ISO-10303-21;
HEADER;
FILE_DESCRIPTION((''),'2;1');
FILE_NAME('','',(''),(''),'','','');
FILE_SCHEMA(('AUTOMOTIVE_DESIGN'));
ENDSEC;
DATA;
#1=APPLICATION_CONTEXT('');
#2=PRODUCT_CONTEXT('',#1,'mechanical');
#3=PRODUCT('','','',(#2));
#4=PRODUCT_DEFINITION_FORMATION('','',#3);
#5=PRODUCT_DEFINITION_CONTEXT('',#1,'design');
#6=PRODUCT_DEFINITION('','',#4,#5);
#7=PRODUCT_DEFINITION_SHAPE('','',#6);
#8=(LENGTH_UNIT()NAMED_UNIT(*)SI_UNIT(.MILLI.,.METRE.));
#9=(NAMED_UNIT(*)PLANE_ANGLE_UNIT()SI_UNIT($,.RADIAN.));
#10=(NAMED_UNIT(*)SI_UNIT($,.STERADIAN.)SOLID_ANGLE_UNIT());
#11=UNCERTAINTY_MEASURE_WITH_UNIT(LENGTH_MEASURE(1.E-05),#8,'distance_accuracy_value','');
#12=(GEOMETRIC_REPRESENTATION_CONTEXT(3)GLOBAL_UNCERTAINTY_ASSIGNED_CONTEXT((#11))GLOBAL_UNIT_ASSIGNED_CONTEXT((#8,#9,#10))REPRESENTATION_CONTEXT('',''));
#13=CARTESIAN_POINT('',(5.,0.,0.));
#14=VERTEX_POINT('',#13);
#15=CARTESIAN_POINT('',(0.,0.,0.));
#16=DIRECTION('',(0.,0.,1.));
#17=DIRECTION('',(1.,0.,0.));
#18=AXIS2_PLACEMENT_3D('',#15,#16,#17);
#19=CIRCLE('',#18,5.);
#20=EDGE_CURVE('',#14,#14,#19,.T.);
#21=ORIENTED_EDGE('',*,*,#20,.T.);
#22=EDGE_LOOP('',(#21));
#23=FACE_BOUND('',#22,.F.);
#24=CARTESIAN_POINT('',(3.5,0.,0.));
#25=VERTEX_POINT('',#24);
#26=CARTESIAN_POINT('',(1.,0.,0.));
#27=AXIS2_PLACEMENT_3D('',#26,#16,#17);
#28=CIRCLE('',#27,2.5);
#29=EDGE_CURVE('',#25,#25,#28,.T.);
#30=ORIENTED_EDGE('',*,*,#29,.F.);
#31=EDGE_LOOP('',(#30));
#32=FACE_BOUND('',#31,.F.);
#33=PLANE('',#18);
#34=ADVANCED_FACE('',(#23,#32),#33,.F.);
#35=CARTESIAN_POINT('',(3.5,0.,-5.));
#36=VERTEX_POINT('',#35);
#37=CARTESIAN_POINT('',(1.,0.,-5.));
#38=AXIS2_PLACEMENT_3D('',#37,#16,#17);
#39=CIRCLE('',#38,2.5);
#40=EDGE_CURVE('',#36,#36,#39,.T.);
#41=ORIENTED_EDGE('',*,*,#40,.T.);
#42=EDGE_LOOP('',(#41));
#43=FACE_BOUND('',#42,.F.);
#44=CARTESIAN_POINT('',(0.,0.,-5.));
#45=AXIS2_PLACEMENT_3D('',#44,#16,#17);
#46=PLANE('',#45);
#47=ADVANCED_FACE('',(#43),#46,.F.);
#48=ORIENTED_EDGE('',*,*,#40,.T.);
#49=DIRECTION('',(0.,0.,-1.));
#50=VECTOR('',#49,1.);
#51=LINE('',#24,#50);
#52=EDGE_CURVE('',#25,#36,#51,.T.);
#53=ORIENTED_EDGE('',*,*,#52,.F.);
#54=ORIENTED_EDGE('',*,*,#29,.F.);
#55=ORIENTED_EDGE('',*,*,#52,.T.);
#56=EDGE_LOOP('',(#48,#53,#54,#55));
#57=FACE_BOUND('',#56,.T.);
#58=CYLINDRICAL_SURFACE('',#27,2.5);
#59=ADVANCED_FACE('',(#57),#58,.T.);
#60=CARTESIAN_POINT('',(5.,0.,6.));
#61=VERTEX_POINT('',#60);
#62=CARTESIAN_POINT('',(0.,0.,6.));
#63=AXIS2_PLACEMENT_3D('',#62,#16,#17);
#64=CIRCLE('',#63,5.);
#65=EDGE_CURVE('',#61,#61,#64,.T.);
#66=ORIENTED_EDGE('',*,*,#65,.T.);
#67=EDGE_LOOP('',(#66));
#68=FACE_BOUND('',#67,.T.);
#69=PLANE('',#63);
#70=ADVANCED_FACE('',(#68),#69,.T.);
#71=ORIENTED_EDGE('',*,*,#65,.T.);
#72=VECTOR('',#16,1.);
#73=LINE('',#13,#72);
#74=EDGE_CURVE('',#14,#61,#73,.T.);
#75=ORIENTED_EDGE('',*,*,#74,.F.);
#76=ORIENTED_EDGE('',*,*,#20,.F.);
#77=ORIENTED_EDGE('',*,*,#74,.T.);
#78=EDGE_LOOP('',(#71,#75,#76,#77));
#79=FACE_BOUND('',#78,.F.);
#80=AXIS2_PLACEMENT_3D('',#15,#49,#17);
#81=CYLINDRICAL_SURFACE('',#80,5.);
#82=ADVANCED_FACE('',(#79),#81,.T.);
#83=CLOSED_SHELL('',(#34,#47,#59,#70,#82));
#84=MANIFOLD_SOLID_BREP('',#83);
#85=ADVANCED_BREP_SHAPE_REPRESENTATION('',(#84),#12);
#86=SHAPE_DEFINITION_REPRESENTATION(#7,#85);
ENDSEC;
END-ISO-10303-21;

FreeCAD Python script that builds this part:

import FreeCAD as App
import Part
import Sketcher

V = App.Vector

doc = App.newDocument("Part")
body = doc.addObject("PartDesign::Body", "Body")

sketch1 = doc.addObject("Sketcher::SketchObject", "Sketch")
body.addObject(sketch1)
sketch1.AttachmentSupport = (doc.XY_Plane, [""])
sketch1.MapMode = "FlatFace"
sketch1.addGeometry(Part.Circle(V(0, 0, 0), V(0, 0, 1), 5), False)
sketch1.addConstraint(Sketcher.Constraint("Coincident", 0, 3, -1, 1))
sketch1.addConstraint(Sketcher.Constraint("Diameter", 0, 10.0))
pad1 = doc.addObject("PartDesign::Pad", "Pad")
body.addObject(pad1)
pad1.Profile = sketch1
pad1.Length = 6

sketch2 = doc.addObject("Sketcher::SketchObject", "Sketch001")
body.addObject(sketch2)
sketch2.AttachmentSupport = (doc.XY_Plane, [""])
sketch2.MapMode = "FlatFace"
sketch2.addGeometry(Part.Circle(V(1, 0, 0), V(0, 0, 1), 2.5), False)
sketch2.addConstraint(Sketcher.Constraint("PointOnObject", 0, 3, -1))
sketch2.addConstraint(Sketcher.Constraint("Diameter", 0, 5.0))
sketch2.addConstraint(Sketcher.Constraint("DistanceX", -1, 1, 0, 3, 1.0))
pad2 = doc.addObject("PartDesign::Pad", "Pad001")
body.addObject(pad2)
pad2.Profile = sketch2
pad2.Length = 5
pad2.Reversed = True

doc.recompute()
